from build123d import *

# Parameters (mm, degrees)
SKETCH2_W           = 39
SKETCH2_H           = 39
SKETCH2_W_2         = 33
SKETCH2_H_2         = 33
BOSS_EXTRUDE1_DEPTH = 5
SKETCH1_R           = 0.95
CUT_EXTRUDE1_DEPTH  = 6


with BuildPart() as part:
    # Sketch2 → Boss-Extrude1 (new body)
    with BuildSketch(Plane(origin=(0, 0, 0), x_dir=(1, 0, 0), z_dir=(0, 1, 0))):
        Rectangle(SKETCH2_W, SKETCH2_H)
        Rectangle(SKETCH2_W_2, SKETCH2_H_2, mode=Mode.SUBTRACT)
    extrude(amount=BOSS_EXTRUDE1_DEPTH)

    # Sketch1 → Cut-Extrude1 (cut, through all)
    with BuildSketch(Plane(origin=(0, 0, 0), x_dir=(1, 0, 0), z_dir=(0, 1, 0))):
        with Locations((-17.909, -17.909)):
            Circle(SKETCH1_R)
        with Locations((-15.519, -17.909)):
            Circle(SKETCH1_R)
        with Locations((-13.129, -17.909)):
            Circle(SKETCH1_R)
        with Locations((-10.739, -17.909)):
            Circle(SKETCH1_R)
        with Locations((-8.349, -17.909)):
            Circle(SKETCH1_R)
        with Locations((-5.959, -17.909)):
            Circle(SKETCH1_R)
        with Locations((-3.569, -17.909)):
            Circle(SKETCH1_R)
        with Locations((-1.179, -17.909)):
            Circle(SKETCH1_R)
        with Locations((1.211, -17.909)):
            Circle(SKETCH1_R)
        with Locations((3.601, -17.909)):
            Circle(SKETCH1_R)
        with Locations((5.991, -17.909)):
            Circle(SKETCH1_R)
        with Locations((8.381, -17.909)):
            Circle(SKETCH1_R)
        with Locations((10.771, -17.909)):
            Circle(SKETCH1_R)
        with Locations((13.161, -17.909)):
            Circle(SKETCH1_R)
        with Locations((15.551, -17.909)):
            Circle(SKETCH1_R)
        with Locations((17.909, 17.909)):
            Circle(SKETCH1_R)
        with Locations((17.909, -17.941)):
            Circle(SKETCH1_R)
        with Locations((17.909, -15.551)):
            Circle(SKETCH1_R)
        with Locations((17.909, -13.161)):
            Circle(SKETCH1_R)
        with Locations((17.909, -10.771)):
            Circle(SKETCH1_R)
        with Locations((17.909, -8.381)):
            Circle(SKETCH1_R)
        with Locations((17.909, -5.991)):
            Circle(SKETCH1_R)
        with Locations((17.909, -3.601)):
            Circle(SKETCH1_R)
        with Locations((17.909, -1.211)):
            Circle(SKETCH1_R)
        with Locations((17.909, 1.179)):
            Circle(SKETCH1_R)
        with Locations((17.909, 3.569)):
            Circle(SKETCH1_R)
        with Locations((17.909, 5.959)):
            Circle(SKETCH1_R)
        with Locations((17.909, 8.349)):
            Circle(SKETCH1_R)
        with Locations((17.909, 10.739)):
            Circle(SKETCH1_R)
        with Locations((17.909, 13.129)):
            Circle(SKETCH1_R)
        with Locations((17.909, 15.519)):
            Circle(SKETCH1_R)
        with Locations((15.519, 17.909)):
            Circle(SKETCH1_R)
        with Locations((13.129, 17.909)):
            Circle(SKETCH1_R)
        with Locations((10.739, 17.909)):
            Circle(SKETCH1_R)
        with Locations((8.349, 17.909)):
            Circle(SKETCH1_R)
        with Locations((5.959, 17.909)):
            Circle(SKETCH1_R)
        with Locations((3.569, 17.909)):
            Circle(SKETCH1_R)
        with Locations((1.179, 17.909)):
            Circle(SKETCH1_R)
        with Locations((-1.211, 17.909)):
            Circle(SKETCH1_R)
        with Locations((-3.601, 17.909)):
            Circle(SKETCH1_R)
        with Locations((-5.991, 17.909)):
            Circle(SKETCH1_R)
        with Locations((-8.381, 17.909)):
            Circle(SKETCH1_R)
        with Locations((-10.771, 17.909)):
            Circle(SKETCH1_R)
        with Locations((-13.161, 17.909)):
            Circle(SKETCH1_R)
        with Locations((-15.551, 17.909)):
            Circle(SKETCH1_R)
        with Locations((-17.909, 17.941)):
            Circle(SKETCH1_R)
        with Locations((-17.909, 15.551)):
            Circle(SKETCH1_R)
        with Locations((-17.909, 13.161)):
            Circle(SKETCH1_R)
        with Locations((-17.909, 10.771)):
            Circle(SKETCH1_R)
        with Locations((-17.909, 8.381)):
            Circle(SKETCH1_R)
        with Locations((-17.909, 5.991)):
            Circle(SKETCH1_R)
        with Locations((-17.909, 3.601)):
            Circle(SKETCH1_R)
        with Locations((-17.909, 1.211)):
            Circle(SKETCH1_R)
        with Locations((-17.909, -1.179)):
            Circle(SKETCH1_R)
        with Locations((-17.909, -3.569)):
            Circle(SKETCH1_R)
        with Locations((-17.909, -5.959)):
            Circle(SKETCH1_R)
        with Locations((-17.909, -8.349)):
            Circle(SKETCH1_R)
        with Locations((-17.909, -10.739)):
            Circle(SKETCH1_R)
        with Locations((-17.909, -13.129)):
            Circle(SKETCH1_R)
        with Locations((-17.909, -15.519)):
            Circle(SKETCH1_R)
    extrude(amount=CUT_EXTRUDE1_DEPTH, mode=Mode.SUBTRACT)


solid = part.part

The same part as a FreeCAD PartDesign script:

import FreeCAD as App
import Part
import Sketcher

V = App.Vector

doc = App.newDocument("Part")
body = doc.addObject("PartDesign::Body", "Body")

# Sketch on XZ plane
sketch1 = body.newObject("Sketcher::SketchObject", "Sketch")
sketch1.AttachmentSupport = (doc.getObject("XZ_Plane"), [""])
sketch1.MapMode = "FlatFace"
sketch1.addGeometry([
    Part.LineSegment(V(-20, -20, 0), V(-20, 20, 0)),  # 0
    Part.LineSegment(V(-20, 20, 0), V(20, 20, 0)),  # 1
    Part.LineSegment(V(20, 20, 0), V(20, -20, 0)),  # 2
    Part.LineSegment(V(20, -20, 0), V(-20, -20, 0)),  # 3
    Part.LineSegment(V(16, 16, 0), V(-16, 16, 0)),  # 4
    Part.LineSegment(V(-16, 16, 0), V(-16, -16, 0)),  # 5
    Part.LineSegment(V(-16, -16, 0), V(16, -16, 0)),  # 6
    Part.LineSegment(V(16, -16, 0), V(16, 16, 0)),  # 7
], False)
sketch1.addConstraint([
    Sketcher.Constraint("Coincident", 0, 2, 1, 1),
    Sketcher.Constraint("Coincident", 1, 2, 2, 1),
    Sketcher.Constraint("Coincident", 2, 2, 3, 1),
    Sketcher.Constraint("Coincident", 3, 2, 0, 1),
    Sketcher.Constraint("Coincident", 4, 2, 5, 1),
    Sketcher.Constraint("Coincident", 5, 2, 6, 1),
    Sketcher.Constraint("Coincident", 6, 2, 7, 1),
    Sketcher.Constraint("Coincident", 7, 2, 4, 1),
    Sketcher.Constraint("Vertical", 0),
    Sketcher.Constraint("Horizontal", 1),
    Sketcher.Constraint("Vertical", 2),
    Sketcher.Constraint("Horizontal", 3),
    Sketcher.Constraint("Horizontal", 4),
    Sketcher.Constraint("Vertical", 5),
    Sketcher.Constraint("Horizontal", 6),
    Sketcher.Constraint("Vertical", 7),
    Sketcher.Constraint("Symmetric", 0, 2, 2, 2, -1, 1),
    Sketcher.Constraint("Symmetric", 4, 2, 6, 2, -1, 1),
    Sketcher.Constraint("Equal", 3, 0),
    Sketcher.Constraint("Equal", 6, 5),
    Sketcher.Constraint("DistanceX", 1, 1, 1, 2, 39.0),
    Sketcher.Constraint("DistanceX", 4, 2, 4, 1, 33.0),
])
pad1 = body.newObject("PartDesign::Pad", "Pad")
pad1.Profile = sketch1
pad1.Length = 5
pad1.Reversed = True

# Sketch on XZ plane
sketch2 = body.newObject("Sketcher::SketchObject", "Sketch001")
sketch2.AttachmentSupport = (doc.getObject("XZ_Plane"), [""])
sketch2.MapMode = "FlatFace"
sketch2.addGeometry([
    Part.Circle(V(-17.9, 17.9, 0), V(0, 0, 1), 0.9),  # 0
    Part.Circle(V(-15.5, 17.9, 0), V(0, 0, 1), 0.9),  # 1
    Part.Circle(V(-13.1, 17.9, 0), V(0, 0, 1), 0.9),  # 2
    Part.Circle(V(-10.7, 17.9, 0), V(0, 0, 1), 0.9),  # 3
    Part.Circle(V(-8.3, 17.9, 0), V(0, 0, 1), 0.9),  # 4
    Part.Circle(V(-6, 17.9, 0), V(0, 0, 1), 0.9),  # 5
    Part.Circle(V(-3.6, 17.9, 0), V(0, 0, 1), 0.9),  # 6
    Part.Circle(V(-1.2, 17.9, 0), V(0, 0, 1), 0.9),  # 7
    Part.Circle(V(1.2, 17.9, 0), V(0, 0, 1), 0.9),  # 8
    Part.Circle(V(3.6, 17.9, 0), V(0, 0, 1), 0.9),  # 9
    Part.Circle(V(6, 17.9, 0), V(0, 0, 1), 0.9),  # 10
    Part.Circle(V(8.4, 17.9, 0), V(0, 0, 1), 0.9),  # 11
    Part.Circle(V(10.8, 17.9, 0), V(0, 0, 1), 0.9),  # 12
    Part.Circle(V(13.2, 17.9, 0), V(0, 0, 1), 0.9),  # 13
    Part.Circle(V(15.6, 17.9, 0), V(0, 0, 1), 0.9),  # 14
    Part.Circle(V(17.9, -17.9, 0), V(0, 0, 1), 0.9),  # 15
    Part.Circle(V(17.9, 17.9, 0), V(0, 0, 1), 0.9),  # 16
    Part.Circle(V(17.9, 15.6, 0), V(0, 0, 1), 0.9),  # 17
    Part.Circle(V(17.9, 13.2, 0), V(0, 0, 1), 0.9),  # 18
    Part.Circle(V(17.9, 10.8, 0), V(0, 0, 1), 0.9),  # 19
    Part.Circle(V(17.9, 8.4, 0), V(0, 0, 1), 0.9),  # 20
    Part.Circle(V(17.9, 6, 0), V(0, 0, 1), 0.9),  # 21
    Part.Circle(V(17.9, 3.6, 0), V(0, 0, 1), 0.9),  # 22
    Part.Circle(V(17.9, 1.2, 0), V(0, 0, 1), 0.9),  # 23
    Part.Circle(V(17.9, -1.2, 0), V(0, 0, 1), 0.9),  # 24
    Part.Circle(V(17.9, -3.6, 0), V(0, 0, 1), 0.9),  # 25
    Part.Circle(V(17.9, -6, 0), V(0, 0, 1), 0.9),  # 26
    Part.Circle(V(17.9, -8.3, 0), V(0, 0, 1), 0.9),  # 27
    Part.Circle(V(17.9, -10.7, 0), V(0, 0, 1), 0.9),  # 28
    Part.Circle(V(17.9, -13.1, 0), V(0, 0, 1), 0.9),  # 29
    Part.Circle(V(17.9, -15.5, 0), V(0, 0, 1), 0.9),  # 30
    Part.Circle(V(15.5, -17.9, 0), V(0, 0, 1), 0.9),  # 31
    Part.Circle(V(13.1, -17.9, 0), V(0, 0, 1), 0.9),  # 32
    Part.Circle(V(10.7, -17.9, 0), V(0, 0, 1), 0.9),  # 33
    Part.Circle(V(8.3, -17.9, 0), V(0, 0, 1), 0.9),  # 34
    Part.Circle(V(6, -17.9, 0), V(0, 0, 1), 0.9),  # 35
    Part.Circle(V(3.6, -17.9, 0), V(0, 0, 1), 0.9),  # 36
    Part.Circle(V(1.2, -17.9, 0), V(0, 0, 1), 0.9),  # 37
    Part.Circle(V(-1.2, -17.9, 0), V(0, 0, 1), 0.9),  # 38
    Part.Circle(V(-3.6, -17.9, 0), V(0, 0, 1), 0.9),  # 39
    Part.Circle(V(-6, -17.9, 0), V(0, 0, 1), 0.9),  # 40
    Part.Circle(V(-8.4, -17.9, 0), V(0, 0, 1), 0.9),  # 41
    Part.Circle(V(-10.8, -17.9, 0), V(0, 0, 1), 0.9),  # 42
    Part.Circle(V(-13.2, -17.9, 0), V(0, 0, 1), 0.9),  # 43
    Part.Circle(V(-15.6, -17.9, 0), V(0, 0, 1), 0.9),  # 44
    Part.Circle(V(-17.9, -17.9, 0), V(0, 0, 1), 0.9),  # 45
    Part.Circle(V(-17.9, -15.6, 0), V(0, 0, 1), 0.9),  # 46
    Part.Circle(V(-17.9, -13.2, 0), V(0, 0, 1), 0.9),  # 47
    Part.Circle(V(-17.9, -10.8, 0), V(0, 0, 1), 0.9),  # 48
    Part.Circle(V(-17.9, -8.4, 0), V(0, 0, 1), 0.9),  # 49
    Part.Circle(V(-17.9, -6, 0), V(0, 0, 1), 0.9),  # 50
    Part.Circle(V(-17.9, -3.6, 0), V(0, 0, 1), 0.9),  # 51
    Part.Circle(V(-17.9, -1.2, 0), V(0, 0, 1), 0.9),  # 52
    Part.Circle(V(-17.9, 1.2, 0), V(0, 0, 1), 0.9),  # 53
    Part.Circle(V(-17.9, 3.6, 0), V(0, 0, 1), 0.9),  # 54
    Part.Circle(V(-17.9, 6, 0), V(0, 0, 1), 0.9),  # 55
    Part.Circle(V(-17.9, 8.3, 0), V(0, 0, 1), 0.9),  # 56
    Part.Circle(V(-17.9, 10.7, 0), V(0, 0, 1), 0.9),  # 57
    Part.Circle(V(-17.9, 13.1, 0), V(0, 0, 1), 0.9),  # 58
    Part.Circle(V(-17.9, 15.5, 0), V(0, 0, 1), 0.9),  # 59
], False)
sketch2.addConstraint([
    Sketcher.Constraint("Equal", 0, 1),
    Sketcher.Constraint("Equal", 1, 2),
    Sketcher.Constraint("Equal", 2, 3),
    Sketcher.Constraint("Equal", 3, 4),
    Sketcher.Constraint("Equal", 4, 5),
    Sketcher.Constraint("Equal", 5, 6),
    Sketcher.Constraint("Equal", 6, 7),
    Sketcher.Constraint("Equal", 7, 8),
    Sketcher.Constraint("Equal", 8, 9),
    Sketcher.Constraint("Equal", 9, 10),
    Sketcher.Constraint("Equal", 10, 11),
    Sketcher.Constraint("Equal", 11, 12),
    Sketcher.Constraint("Equal", 12, 13),
    Sketcher.Constraint("Equal", 13, 14),
    Sketcher.Constraint("Equal", 14, 15),
    Sketcher.Constraint("Equal", 15, 16),
    Sketcher.Constraint("Equal", 16, 17),
    Sketcher.Constraint("Equal", 17, 18),
    Sketcher.Constraint("Equal", 18, 19),
    Sketcher.Constraint("Equal", 19, 20),
    Sketcher.Constraint("Equal", 20, 21),
    Sketcher.Constraint("Equal", 21, 22),
    Sketcher.Constraint("Equal", 22, 23),
    Sketcher.Constraint("Equal", 23, 24),
    Sketcher.Constraint("Equal", 24, 25),
    Sketcher.Constraint("Equal", 25, 26),
    Sketcher.Constraint("Equal", 26, 27),
    Sketcher.Constraint("Equal", 27, 28),
    Sketcher.Constraint("Equal", 28, 29),
    Sketcher.Constraint("Equal", 29, 30),
    Sketcher.Constraint("Equal", 30, 31),
    Sketcher.Constraint("Equal", 31, 32),
    Sketcher.Constraint("Equal", 32, 33),
    Sketcher.Constraint("Equal", 33, 34),
    Sketcher.Constraint("Equal", 34, 35),
    Sketcher.Constraint("Equal", 35, 36),
    Sketcher.Constraint("Equal", 36, 37),
    Sketcher.Constraint("Equal", 37, 38),
    Sketcher.Constraint("Equal", 38, 39),
    Sketcher.Constraint("Equal", 39, 40),
    Sketcher.Constraint("Equal", 40, 41),
    Sketcher.Constraint("Equal", 41, 42),
    Sketcher.Constraint("Equal", 42, 43),
    Sketcher.Constraint("Equal", 43, 44),
    Sketcher.Constraint("Equal", 44, 45),
    Sketcher.Constraint("Equal", 45, 46),
    Sketcher.Constraint("Equal", 46, 47),
    Sketcher.Constraint("Equal", 47, 48),
    Sketcher.Constraint("Equal", 48, 49),
    Sketcher.Constraint("Equal", 49, 50),
    Sketcher.Constraint("Equal", 50, 51),
    Sketcher.Constraint("Equal", 51, 52),
    Sketcher.Constraint("Equal", 52, 53),
    Sketcher.Constraint("Equal", 53, 54),
    Sketcher.Constraint("Equal", 54, 55),
    Sketcher.Constraint("Equal", 55, 56),
    Sketcher.Constraint("Equal", 56, 57),
    Sketcher.Constraint("Equal", 57, 58),
    Sketcher.Constraint("Equal", 58, 59),
    Sketcher.Constraint("Symmetric", 0, 3, 15, 3, -1, 1),
    Sketcher.Constraint("Symmetric", 1, 3, 31, 3, -1, 1),
    Sketcher.Constraint("Symmetric", 2, 3, 32, 3, -1, 1),
    Sketcher.Constraint("Symmetric", 3, 3, 33, 3, -1, 1),
    Sketcher.Constraint("Symmetric", 4, 3, 34, 3, -1, 1),
    Sketcher.Constraint("Symmetric", 5, 3, 35, 3, -1, 1),
    Sketcher.Constraint("Symmetric", 6, 3, 36, 3, -1, 1),
    Sketcher.Constraint("Symmetric", 7, 3, 37, 3, -1, 1),
    Sketcher.Constraint("Symmetric", 8, 3, 38, 3, -1, 1),
    Sketcher.Constraint("Symmetric", 9, 3, 39, 3, -1, 1),
    Sketcher.Constraint("Symmetric", 10, 3, 40, 3, -1, 1),
    Sketcher.Constraint("Symmetric", 11, 3, 41, 3, -1, 1),
    Sketcher.Constraint("Symmetric", 12, 3, 42, 3, -1, 1),
    Sketcher.Constraint("Symmetric", 13, 3, 43, 3, -1, 1),
    Sketcher.Constraint("Symmetric", 14, 3, 44, 3, -1, 1),
    Sketcher.Constraint("Symmetric", 16, 3, 45, 3, -1, 1),
    Sketcher.Constraint("Symmetric", 17, 3, 46, 3, -1, 1),
    Sketcher.Constraint("Symmetric", 18, 3, 47, 3, -1, 1),
    Sketcher.Constraint("Symmetric", 19, 3, 48, 3, -1, 1),
    Sketcher.Constraint("Symmetric", 20, 3, 49, 3, -1, 1),
    Sketcher.Constraint("Symmetric", 21, 3, 50, 3, -1, 1),
    Sketcher.Constraint("Symmetric", 22, 3, 51, 3, -1, 1),
    Sketcher.Constraint("Symmetric", 23, 3, 52, 3, -1, 1),
    Sketcher.Constraint("Symmetric", 24, 3, 53, 3, -1, 1),
    Sketcher.Constraint("Symmetric", 25, 3, 54, 3, -1, 1),
    Sketcher.Constraint("Symmetric", 26, 3, 55, 3, -1, 1),
    Sketcher.Constraint("Symmetric", 27, 3, 56, 3, -1, 1),
    Sketcher.Constraint("Symmetric", 28, 3, 57, 3, -1, 1),
    Sketcher.Constraint("Symmetric", 29, 3, 58, 3, -1, 1),
    Sketcher.Constraint("Symmetric", 30, 3, 59, 3, -1, 1),
    Sketcher.Constraint("Horizontal", 0, 3, 1, 3),
    Sketcher.Constraint("Horizontal", 1, 3, 2, 3),
    Sketcher.Constraint("Horizontal", 2, 3, 3, 3),
    Sketcher.Constraint("Horizontal", 3, 3, 4, 3),
    Sketcher.Constraint("Horizontal", 4, 3, 5, 3),
    Sketcher.Constraint("Horizontal", 5, 3, 6, 3),
    Sketcher.Constraint("Horizontal", 6, 3, 7, 3),
    Sketcher.Constraint("Horizontal", 7, 3, 8, 3),
    Sketcher.Constraint("Horizontal", 8, 3, 9, 3),
    Sketcher.Constraint("Horizontal", 9, 3, 10, 3),
    Sketcher.Constraint("Horizontal", 10, 3, 11, 3),
    Sketcher.Constraint("Horizontal", 11, 3, 12, 3),
    Sketcher.Constraint("Horizontal", 12, 3, 13, 3),
    Sketcher.Constraint("Horizontal", 13, 3, 14, 3),
    Sketcher.Constraint("Vertical", 15, 3, 16, 3),
    Sketcher.Constraint("Vertical", 16, 3, 17, 3),
    Sketcher.Constraint("Vertical", 17, 3, 18, 3),
    Sketcher.Constraint("Vertical", 18, 3, 19, 3),
    Sketcher.Constraint("Vertical", 19, 3, 20, 3),
    Sketcher.Constraint("Vertical", 20, 3, 21, 3),
    Sketcher.Constraint("Vertical", 21, 3, 22, 3),
    Sketcher.Constraint("Vertical", 22, 3, 23, 3),
    Sketcher.Constraint("Vertical", 23, 3, 24, 3),
    Sketcher.Constraint("Vertical", 24, 3, 25, 3),
    Sketcher.Constraint("Vertical", 25, 3, 26, 3),
    Sketcher.Constraint("Vertical", 26, 3, 27, 3),
    Sketcher.Constraint("Vertical", 27, 3, 28, 3),
    Sketcher.Constraint("Vertical", 28, 3, 29, 3),
    Sketcher.Constraint("Vertical", 29, 3, 30, 3),
    Sketcher.Constraint("Diameter", 0, 1.9),
    Sketcher.Constraint("DistanceX", 0, 3, 1, 3, 2.39),
    Sketcher.Constraint("DistanceX", 1, 3, 2, 3, 2.39),
    Sketcher.Constraint("DistanceX", 2, 3, 3, 3, 2.39),
    Sketcher.Constraint("DistanceX", 3, 3, 4, 3, 2.39),
    Sketcher.Constraint("DistanceX", 4, 3, 5, 3, 2.39),
    Sketcher.Constraint("DistanceX", 5, 3, 6, 3, 2.39),
    Sketcher.Constraint("DistanceX", 6, 3, 7, 3, 2.39),
    Sketcher.Constraint("DistanceX", 7, 3, 8, 3, 2.39),
    Sketcher.Constraint("DistanceX", 8, 3, 9, 3, 2.39),
    Sketcher.Constraint("DistanceX", 9, 3, 10, 3, 2.39),
    Sketcher.Constraint("DistanceX", 10, 3, 11, 3, 2.39),
    Sketcher.Constraint("DistanceX", 11, 3, 12, 3, 2.39),
    Sketcher.Constraint("DistanceX", 12, 3, 13, 3, 2.39),
    Sketcher.Constraint("DistanceX", 13, 3, 14, 3, 2.39),
    Sketcher.Constraint("DistanceY", 17, 3, 16, 3, 2.39),
    Sketcher.Constraint("DistanceY", 18, 3, 17, 3, 2.39),
    Sketcher.Constraint("DistanceY", 19, 3, 18, 3, 2.39),
    Sketcher.Constraint("DistanceY", 20, 3, 19, 3, 2.39),
    Sketcher.Constraint("DistanceY", 21, 3, 20, 3, 2.39),
    Sketcher.Constraint("DistanceY", 22, 3, 21, 3, 2.39),
    Sketcher.Constraint("DistanceY", 23, 3, 22, 3, 2.39),
    Sketcher.Constraint("DistanceY", 24, 3, 23, 3, 2.39),
    Sketcher.Constraint("DistanceY", 25, 3, 24, 3, 2.39),
    Sketcher.Constraint("DistanceY", 26, 3, 25, 3, 2.39),
    Sketcher.Constraint("DistanceY", 15, 3, 26, 3, 11.95),
    Sketcher.Constraint("DistanceY", 27, 3, 26, 3, 2.39),
    Sketcher.Constraint("DistanceY", 28, 3, 27, 3, 2.39),
    Sketcher.Constraint("DistanceY", 29, 3, 28, 3, 2.39),
    Sketcher.Constraint("DistanceY", 15, 3, 30, 3, 2.39),
    Sketcher.Constraint("DistanceX", 0, 3, -1, 1, 17.909),
    Sketcher.Constraint("DistanceY", -1, 1, 0, 3, 17.909),
])
pocket1 = body.newObject("PartDesign::Pocket", "Pocket")
pocket1.Profile = sketch2
pocket1.Type = "ThroughAll"

doc.recompute()
